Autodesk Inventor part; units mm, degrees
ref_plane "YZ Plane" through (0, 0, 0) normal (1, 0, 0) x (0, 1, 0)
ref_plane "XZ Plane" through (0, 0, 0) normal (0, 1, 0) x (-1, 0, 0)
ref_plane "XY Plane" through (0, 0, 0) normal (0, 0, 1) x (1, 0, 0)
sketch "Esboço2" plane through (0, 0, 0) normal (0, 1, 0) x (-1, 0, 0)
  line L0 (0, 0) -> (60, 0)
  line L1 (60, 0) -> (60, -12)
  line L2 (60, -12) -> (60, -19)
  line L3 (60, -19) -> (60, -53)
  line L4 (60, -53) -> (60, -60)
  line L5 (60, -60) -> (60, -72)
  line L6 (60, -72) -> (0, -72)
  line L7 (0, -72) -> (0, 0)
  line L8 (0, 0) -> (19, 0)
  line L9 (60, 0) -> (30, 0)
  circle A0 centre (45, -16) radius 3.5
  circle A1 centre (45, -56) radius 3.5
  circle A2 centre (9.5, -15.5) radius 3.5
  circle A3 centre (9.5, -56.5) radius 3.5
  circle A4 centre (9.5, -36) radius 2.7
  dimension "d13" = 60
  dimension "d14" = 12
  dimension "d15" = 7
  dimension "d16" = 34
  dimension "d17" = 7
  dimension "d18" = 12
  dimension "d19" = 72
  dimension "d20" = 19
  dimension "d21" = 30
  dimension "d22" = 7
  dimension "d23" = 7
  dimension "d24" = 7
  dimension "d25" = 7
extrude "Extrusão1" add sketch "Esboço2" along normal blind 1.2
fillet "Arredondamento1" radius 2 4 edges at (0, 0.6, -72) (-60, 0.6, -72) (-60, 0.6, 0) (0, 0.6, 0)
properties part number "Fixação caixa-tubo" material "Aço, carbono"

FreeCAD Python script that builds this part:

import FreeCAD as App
import Part
import Sketcher
Q = App.Units.Quantity


def edges_at(feature, points):
    """Names of the edges that pass closest to the given points."""
    edges = feature.Shape.Edges
    near = lambda p: min(range(len(edges)), key=lambda i: edges[i].distToShape(Part.Vertex(*p))[0])
    return sorted({f"Edge{near(p) + 1}" for p in points})


def add_polygon(sketch, points):
    """Adds a closed chain of lines whose ends are joined by coincident constraints."""
    first, n = sketch.GeometryCount, len(points)
    for a, b in zip(points, points[1:] + points[:1]):
        sketch.addGeometry(Part.LineSegment(App.Vector(*a, 0), App.Vector(*b, 0)), False)
    for i in range(n):
        sketch.addConstraint(Sketcher.Constraint("Coincident", first + i, 2, first + (i + 1) % n, 1))

doc = App.newDocument("Part")
params = doc.addObject("Spreadsheet::Sheet", "Params")
for row, (alias, value) in enumerate([
    ("sketch1_diameter", "7 mm"),
    ("sketch1_width", "60 mm"),
    ("sketch1_height", "72 mm"),
    ("sketch1_diameter2", "5.4 mm"),
    ("pad1_length", "1.2 mm"),
    ("fillet_radius", "2 mm"),
], start=1):
    params.set(f"A{row}", alias)
    params.set(f"B{row}", "=" + value)
    params.setAlias(f"B{row}", alias)

body = doc.addObject("PartDesign::Body", "Body")

sketch1 = body.newObject("Sketcher::SketchObject", "Sketch")
sketch1.AttachmentSupport = (doc.getObject("XZ_Plane"), [""])
sketch1.MapMode = "FlatFace"
add_polygon(sketch1, [(-60, 0), (0, 0), (0, -72), (-60, -72)])
sketch1.addGeometry(Part.Circle(App.Vector(-9.5, -56.5, 0), App.Vector(0, 0, 1), 3.5), False)
sketch1.addGeometry(Part.Circle(App.Vector(-45, -56, 0), App.Vector(0, 0, 1), 3.5), False)
sketch1.addGeometry(Part.Circle(App.Vector(-9.5, -36, 0), App.Vector(0, 0, 1), 2.7), False)
sketch1.addGeometry(Part.Circle(App.Vector(-9.5, -15.5, 0), App.Vector(0, 0, 1), 3.5), False)
sketch1.addGeometry(Part.Circle(App.Vector(-45, -16, 0), App.Vector(0, 0, 1), 3.5), False)
sketch1.addConstraint(Sketcher.Constraint("Horizontal", 0))
sketch1.addConstraint(Sketcher.Constraint("Vertical", 1))
sketch1.addConstraint(Sketcher.Constraint("Horizontal", 2))
sketch1.addConstraint(Sketcher.Constraint("Vertical", 3))
sketch1.addConstraint(Sketcher.Constraint("Coincident", 0, 2, -1, 1))
sketch1.addConstraint(Sketcher.Constraint("Equal", 4, 5))
sketch1.addConstraint(Sketcher.Constraint("Equal", 5, 7))
sketch1.addConstraint(Sketcher.Constraint("Equal", 7, 8))
sketch1.addConstraint(Sketcher.Constraint("Vertical", 4, 3, 6, 3))
sketch1.addConstraint(Sketcher.Constraint("Vertical", 6, 3, 7, 3))
sketch1.addConstraint(Sketcher.Constraint("Vertical", 5, 3, 8, 3))
sketch1.addConstraint(Sketcher.Constraint("Diameter", 4, Q("7 mm")))
sketch1.addConstraint(Sketcher.Constraint("DistanceX", 0, 1, 0, 2, Q("60 mm")))
sketch1.addConstraint(Sketcher.Constraint("DistanceY", 1, 2, 1, 1, Q("72 mm")))
sketch1.addConstraint(Sketcher.Constraint("Diameter", 6, Q("5.4 mm")))
sketch1.addConstraint(Sketcher.Constraint("DistanceX", 5, 3, -1, 1, Q("45 mm")))
sketch1.addConstraint(Sketcher.Constraint("DistanceY", 5, 3, -1, 1, Q("56 mm")))
sketch1.addConstraint(Sketcher.Constraint("DistanceY", 6, 3, -1, 1, Q("36 mm")))
sketch1.addConstraint(Sketcher.Constraint("DistanceY", 8, 3, -1, 1, Q("16 mm")))
sketch1.addConstraint(Sketcher.Constraint("DistanceY", 4, 3, 7, 3, Q("41 mm")))
sketch1.addConstraint(Sketcher.Constraint("DistanceX", 4, 3, -1, 1, Q("9.5 mm")))
sketch1.addConstraint(Sketcher.Constraint("DistanceY", 4, 3, -1, 1, Q("56.5 mm")))
sketch1.setExpression("Constraints[15]", "Params.sketch1_diameter")
sketch1.setExpression("Constraints[16]", "Params.sketch1_width")
sketch1.setExpression("Constraints[17]", "Params.sketch1_height")
sketch1.setExpression("Constraints[18]", "Params.sketch1_diameter2")
pad1 = body.newObject("PartDesign::Pad", "Pad")
pad1.Profile = sketch1
pad1.setExpression("Length", "Params.pad1_length")
pad1.Reversed = True
doc.recompute()

fillet = body.newObject("PartDesign::Fillet", "Fillet")
fillet.Base = (pad1, edges_at(pad1, [
    (0, 0.6, -72),
    (-60, 0.6, -72),
    (-60, 0.6, 0),
    (0, 0.6, 0),
]))
fillet.setExpression("Radius", "Params.fillet_radius")

doc.recompute()
